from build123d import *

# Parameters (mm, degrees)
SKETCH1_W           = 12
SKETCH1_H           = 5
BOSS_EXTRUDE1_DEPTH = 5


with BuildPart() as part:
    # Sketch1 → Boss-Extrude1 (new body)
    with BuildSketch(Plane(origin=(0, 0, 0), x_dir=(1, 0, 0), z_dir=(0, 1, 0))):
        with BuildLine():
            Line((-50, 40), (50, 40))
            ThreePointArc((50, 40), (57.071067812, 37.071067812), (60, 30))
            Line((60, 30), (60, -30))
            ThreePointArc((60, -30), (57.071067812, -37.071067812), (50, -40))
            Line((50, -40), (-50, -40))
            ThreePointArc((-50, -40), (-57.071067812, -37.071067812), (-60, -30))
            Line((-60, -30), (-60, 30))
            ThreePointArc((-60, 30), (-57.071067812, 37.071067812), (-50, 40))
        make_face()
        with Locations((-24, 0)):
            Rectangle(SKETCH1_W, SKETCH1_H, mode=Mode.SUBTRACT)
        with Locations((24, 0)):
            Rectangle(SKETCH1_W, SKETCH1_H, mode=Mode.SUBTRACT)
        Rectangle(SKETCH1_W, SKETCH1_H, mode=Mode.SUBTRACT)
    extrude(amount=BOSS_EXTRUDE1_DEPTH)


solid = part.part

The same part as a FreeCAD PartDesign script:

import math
import FreeCAD as App
import Part
import Sketcher
from FreeCAD import Vector
Q = App.Units.Quantity

doc = App.newDocument("Part")
body = doc.addObject("PartDesign::Body", "Body")

# Sketch on XZ plane
sketch1 = doc.addObject("Sketcher::SketchObject", "Sketch")
body.addObject(sketch1)
sketch1.AttachmentSupport = (doc.XZ_Plane, [""])
sketch1.MapMode = "FlatFace"
sketch1.addGeometry([
    Part.LineSegment(Vector(50, -40, 0), Vector(-50, -40, 0)),  # 0
    Part.ArcOfCircle(Part.Circle(Vector(-50, -30, 0), Vector(0, 0, 1), 10), math.radians(180), math.radians(270)),  # 1
    Part.LineSegment(Vector(-60, -30, 0), Vector(-60, 30, 0)),  # 2
    Part.ArcOfCircle(Part.Circle(Vector(-50, 30, 0), Vector(0, 0, 1), 10), math.radians(90), math.radians(180)),  # 3
    Part.LineSegment(Vector(-50, 40, 0), Vector(50, 40, 0)),  # 4
    Part.ArcOfCircle(Part.Circle(Vector(50, 30, 0), Vector(0, 0, 1), 10), math.radians(0), math.radians(90)),  # 5
    Part.LineSegment(Vector(60, 30, 0), Vector(60, -30, 0)),  # 6
    Part.ArcOfCircle(Part.Circle(Vector(50, -30, 0), Vector(0, 0, 1), 10), math.radians(-90), math.radians(0)),  # 7
    Part.LineSegment(Vector(18, 2.5, 0), Vector(18, -2.5, 0)),  # 8
    Part.LineSegment(Vector(18, -2.5, 0), Vector(30, -2.5, 0)),  # 9
    Part.LineSegment(Vector(30, -2.5, 0), Vector(30, 2.5, 0)),  # 10
    Part.LineSegment(Vector(30, 2.5, 0), Vector(18, 2.5, 0)),  # 11
    Part.LineSegment(Vector(-6, 2.5, 0), Vector(-6, -2.5, 0)),  # 12
    Part.LineSegment(Vector(-6, -2.5, 0), Vector(6, -2.5, 0)),  # 13
    Part.LineSegment(Vector(6, -2.5, 0), Vector(6, 2.5, 0)),  # 14
    Part.LineSegment(Vector(6, 2.5, 0), Vector(-6, 2.5, 0)),  # 15
    Part.LineSegment(Vector(-30, 2.5, 0), Vector(-30, -2.5, 0)),  # 16
    Part.LineSegment(Vector(-30, -2.5, 0), Vector(-18, -2.5, 0)),  # 17
    Part.LineSegment(Vector(-18, -2.5, 0), Vector(-18, 2.5, 0)),  # 18
    Part.LineSegment(Vector(-18, 2.5, 0), Vector(-30, 2.5, 0)),  # 19
], False)
sketch1.addConstraint([
    Sketcher.Constraint("Tangent", 0, 2, 1, 2),
    Sketcher.Constraint("Tangent", 1, 1, 2, 1),
    Sketcher.Constraint("Tangent", 2, 2, 3, 2),
    Sketcher.Constraint("Tangent", 3, 1, 4, 1),
    Sketcher.Constraint("Tangent", 4, 2, 5, 2),
    Sketcher.Constraint("Tangent", 5, 1, 6, 1),
    Sketcher.Constraint("Tangent", 6, 2, 7, 2),
    Sketcher.Constraint("Tangent", 7, 1, 0, 1),
    Sketcher.Constraint("Coincident", 8, 2, 9, 1),
    Sketcher.Constraint("Coincident", 9, 2, 10, 1),
    Sketcher.Constraint("Coincident", 10, 2, 11, 1),
    Sketcher.Constraint("Coincident", 11, 2, 8, 1),
    Sketcher.Constraint("Coincident", 12, 2, 13, 1),
    Sketcher.Constraint("Coincident", 13, 2, 14, 1),
    Sketcher.Constraint("Coincident", 14, 2, 15, 1),
    Sketcher.Constraint("Coincident", 15, 2, 12, 1),
    Sketcher.Constraint("Coincident", 16, 2, 17, 1),
    Sketcher.Constraint("Coincident", 17, 2, 18, 1),
    Sketcher.Constraint("Coincident", 18, 2, 19, 1),
    Sketcher.Constraint("Coincident", 19, 2, 16, 1),
    Sketcher.Constraint("Horizontal", 0),
    Sketcher.Constraint("Vertical", 2),
    Sketcher.Constraint("Horizontal", 4),
    Sketcher.Constraint("Vertical", 6),
    Sketcher.Constraint("Vertical", 8),
    Sketcher.Constraint("Horizontal", 9),
    Sketcher.Constraint("Vertical", 10),
    Sketcher.Constraint("Horizontal", 11),
    Sketcher.Constraint("Vertical", 12),
    Sketcher.Constraint("Horizontal", 13),
    Sketcher.Constraint("Vertical", 14),
    Sketcher.Constraint("Horizontal", 15),
    Sketcher.Constraint("Vertical", 16),
    Sketcher.Constraint("Horizontal", 17),
    Sketcher.Constraint("Vertical", 18),
    Sketcher.Constraint("Horizontal", 19),
    Sketcher.Constraint("Equal", 1, 3),
    Sketcher.Constraint("Equal", 3, 5),
    Sketcher.Constraint("Equal", 5, 7),
    Sketcher.Constraint("Symmetric", 1, 3, 5, 3, -1, 1),
    Sketcher.Constraint("Symmetric", 12, 2, 14, 2, -1, 1),
    Sketcher.Constraint("Symmetric", 10, 2, 16, 2, -1, 1),
    Sketcher.Constraint("Symmetric", 8, 2, 18, 2, -1, 1),
    Sketcher.Constraint("Horizontal", 9, 2, 12, 2),
    Sketcher.Constraint("Horizontal", 11, 2, 14, 2),
    Sketcher.Constraint("Equal", 11, 13),
    Sketcher.Constraint("Radius", 1, Q("10 mm")),
    Sketcher.Constraint("DistanceX", 0, 2, 0, 1, Q("100 mm")),
    Sketcher.Constraint("DistanceX", 9, 1, 9, 2, Q("12 mm")),
    Sketcher.Constraint("DistanceY", 2, 1, 2, 2, Q("60 mm")),
    Sketcher.Constraint("DistanceY", 8, 2, 8, 1, Q("5 mm")),
    Sketcher.Constraint("DistanceX", -1, 1, 8, 2, Q("18 mm")),
])
pad1 = doc.addObject("PartDesign::Pad", "Pad")
body.addObject(pad1)
pad1.Profile = sketch1
pad1.Length = 5
pad1.Reversed = True

doc.recompute()
